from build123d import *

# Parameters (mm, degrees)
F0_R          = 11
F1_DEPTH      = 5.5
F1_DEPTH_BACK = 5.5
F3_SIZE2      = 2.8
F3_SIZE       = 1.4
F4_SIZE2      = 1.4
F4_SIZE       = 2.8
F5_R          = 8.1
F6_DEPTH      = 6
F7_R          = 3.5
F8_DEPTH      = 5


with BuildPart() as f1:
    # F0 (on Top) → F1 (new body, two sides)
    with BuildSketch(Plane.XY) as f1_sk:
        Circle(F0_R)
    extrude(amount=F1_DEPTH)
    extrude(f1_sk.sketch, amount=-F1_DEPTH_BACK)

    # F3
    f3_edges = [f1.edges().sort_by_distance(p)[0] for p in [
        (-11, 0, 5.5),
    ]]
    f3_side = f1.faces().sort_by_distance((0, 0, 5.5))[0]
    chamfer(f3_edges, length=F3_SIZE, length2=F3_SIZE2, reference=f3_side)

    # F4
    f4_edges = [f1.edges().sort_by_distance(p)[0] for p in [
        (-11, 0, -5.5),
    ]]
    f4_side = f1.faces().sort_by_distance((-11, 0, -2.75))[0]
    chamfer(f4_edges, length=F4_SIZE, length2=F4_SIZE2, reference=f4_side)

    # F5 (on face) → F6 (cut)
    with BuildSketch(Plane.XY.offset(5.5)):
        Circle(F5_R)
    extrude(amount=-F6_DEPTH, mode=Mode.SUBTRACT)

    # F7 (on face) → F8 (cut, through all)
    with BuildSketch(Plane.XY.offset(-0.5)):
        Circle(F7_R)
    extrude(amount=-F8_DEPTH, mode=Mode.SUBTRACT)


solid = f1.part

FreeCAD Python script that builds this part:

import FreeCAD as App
import Part
import Sketcher
from FreeCAD import Vector


def edges_at(feature, points):
    """Names of the edges that pass closest to the given points."""
    edges = feature.Shape.Edges
    near = lambda p: min(range(len(edges)), key=lambda i: edges[i].distToShape(Part.Vertex(*p))[0])
    return sorted({f"Edge{near(p) + 1}" for p in points})

doc = App.newDocument("Part")
body = doc.addObject("PartDesign::Body", "Body")

sketch1 = body.newObject("Sketcher::SketchObject", "Sketch")
sketch1.AttachmentSupport = (doc.getObject("XY_Plane"), [""])
sketch1.MapMode = "FlatFace"
sketch1.addGeometry(Part.Circle(Vector(0, 0, 0), Vector(0, 0, 1), 11), False)
sketch1.addConstraint(Sketcher.Constraint("Coincident", 0, 3, -1, 1))
sketch1.addConstraint(Sketcher.Constraint("Diameter", 0, 22.0))
pad1 = body.newObject("PartDesign::Pad", "Pad")
pad1.Profile = sketch1
pad1.Type = "TwoLengths"
pad1.Length = 5.5
pad1.Length2 = 5.5
doc.recompute()

chamfer = body.newObject("PartDesign::Chamfer", "Chamfer")
chamfer.Base = (pad1, edges_at(pad1, [(-11, 0, 5.5)]))
chamfer.ChamferType = "Two distances"
chamfer.Size = 1.4
chamfer.Size2 = 2.8
chamfer.FlipDirection = True
doc.recompute()

chamfer2 = body.newObject("PartDesign::Chamfer", "Chamfer001")
chamfer2.Base = (chamfer, edges_at(chamfer, [(-11, 0, -5.5)]))
chamfer2.ChamferType = "Two distances"
chamfer2.Size = 2.8
chamfer2.Size2 = 1.4

sketch2 = body.newObject("Sketcher::SketchObject", "Sketch001")
sketch2.AttachmentSupport = (doc.getObject("XY_Plane"), [""])
sketch2.MapMode = "FlatFace"
sketch2.AttachmentOffset = App.Placement(Vector(0, 0, 5.5), App.Rotation())
sketch2.addGeometry(Part.Circle(Vector(0, 0, 0), Vector(0, 0, 1), 8.1), False)
sketch2.addConstraint(Sketcher.Constraint("Coincident", 0, 3, -1, 1))
sketch2.addConstraint(Sketcher.Constraint("Diameter", 0, 16.2))
pocket1 = body.newObject("PartDesign::Pocket", "Pocket")
pocket1.Profile = sketch2
pocket1.Length = 6

sketch3 = body.newObject("Sketcher::SketchObject", "Sketch002")
sketch3.AttachmentSupport = (doc.getObject("XY_Plane"), [""])
sketch3.MapMode = "FlatFace"
sketch3.AttachmentOffset = App.Placement(Vector(0, 0, -0.5), App.Rotation())
sketch3.addGeometry(Part.Circle(Vector(0, 0, 0), Vector(0, 0, 1), 3.5), False)
sketch3.addConstraint(Sketcher.Constraint("Coincident", 0, 3, -1, 1))
sketch3.addConstraint(Sketcher.Constraint("Diameter", 0, 7.0))
pocket2 = body.newObject("PartDesign::Pocket", "Pocket001")
pocket2.Profile = sketch3
pocket2.Type = "ThroughAll"

doc.recompute()
